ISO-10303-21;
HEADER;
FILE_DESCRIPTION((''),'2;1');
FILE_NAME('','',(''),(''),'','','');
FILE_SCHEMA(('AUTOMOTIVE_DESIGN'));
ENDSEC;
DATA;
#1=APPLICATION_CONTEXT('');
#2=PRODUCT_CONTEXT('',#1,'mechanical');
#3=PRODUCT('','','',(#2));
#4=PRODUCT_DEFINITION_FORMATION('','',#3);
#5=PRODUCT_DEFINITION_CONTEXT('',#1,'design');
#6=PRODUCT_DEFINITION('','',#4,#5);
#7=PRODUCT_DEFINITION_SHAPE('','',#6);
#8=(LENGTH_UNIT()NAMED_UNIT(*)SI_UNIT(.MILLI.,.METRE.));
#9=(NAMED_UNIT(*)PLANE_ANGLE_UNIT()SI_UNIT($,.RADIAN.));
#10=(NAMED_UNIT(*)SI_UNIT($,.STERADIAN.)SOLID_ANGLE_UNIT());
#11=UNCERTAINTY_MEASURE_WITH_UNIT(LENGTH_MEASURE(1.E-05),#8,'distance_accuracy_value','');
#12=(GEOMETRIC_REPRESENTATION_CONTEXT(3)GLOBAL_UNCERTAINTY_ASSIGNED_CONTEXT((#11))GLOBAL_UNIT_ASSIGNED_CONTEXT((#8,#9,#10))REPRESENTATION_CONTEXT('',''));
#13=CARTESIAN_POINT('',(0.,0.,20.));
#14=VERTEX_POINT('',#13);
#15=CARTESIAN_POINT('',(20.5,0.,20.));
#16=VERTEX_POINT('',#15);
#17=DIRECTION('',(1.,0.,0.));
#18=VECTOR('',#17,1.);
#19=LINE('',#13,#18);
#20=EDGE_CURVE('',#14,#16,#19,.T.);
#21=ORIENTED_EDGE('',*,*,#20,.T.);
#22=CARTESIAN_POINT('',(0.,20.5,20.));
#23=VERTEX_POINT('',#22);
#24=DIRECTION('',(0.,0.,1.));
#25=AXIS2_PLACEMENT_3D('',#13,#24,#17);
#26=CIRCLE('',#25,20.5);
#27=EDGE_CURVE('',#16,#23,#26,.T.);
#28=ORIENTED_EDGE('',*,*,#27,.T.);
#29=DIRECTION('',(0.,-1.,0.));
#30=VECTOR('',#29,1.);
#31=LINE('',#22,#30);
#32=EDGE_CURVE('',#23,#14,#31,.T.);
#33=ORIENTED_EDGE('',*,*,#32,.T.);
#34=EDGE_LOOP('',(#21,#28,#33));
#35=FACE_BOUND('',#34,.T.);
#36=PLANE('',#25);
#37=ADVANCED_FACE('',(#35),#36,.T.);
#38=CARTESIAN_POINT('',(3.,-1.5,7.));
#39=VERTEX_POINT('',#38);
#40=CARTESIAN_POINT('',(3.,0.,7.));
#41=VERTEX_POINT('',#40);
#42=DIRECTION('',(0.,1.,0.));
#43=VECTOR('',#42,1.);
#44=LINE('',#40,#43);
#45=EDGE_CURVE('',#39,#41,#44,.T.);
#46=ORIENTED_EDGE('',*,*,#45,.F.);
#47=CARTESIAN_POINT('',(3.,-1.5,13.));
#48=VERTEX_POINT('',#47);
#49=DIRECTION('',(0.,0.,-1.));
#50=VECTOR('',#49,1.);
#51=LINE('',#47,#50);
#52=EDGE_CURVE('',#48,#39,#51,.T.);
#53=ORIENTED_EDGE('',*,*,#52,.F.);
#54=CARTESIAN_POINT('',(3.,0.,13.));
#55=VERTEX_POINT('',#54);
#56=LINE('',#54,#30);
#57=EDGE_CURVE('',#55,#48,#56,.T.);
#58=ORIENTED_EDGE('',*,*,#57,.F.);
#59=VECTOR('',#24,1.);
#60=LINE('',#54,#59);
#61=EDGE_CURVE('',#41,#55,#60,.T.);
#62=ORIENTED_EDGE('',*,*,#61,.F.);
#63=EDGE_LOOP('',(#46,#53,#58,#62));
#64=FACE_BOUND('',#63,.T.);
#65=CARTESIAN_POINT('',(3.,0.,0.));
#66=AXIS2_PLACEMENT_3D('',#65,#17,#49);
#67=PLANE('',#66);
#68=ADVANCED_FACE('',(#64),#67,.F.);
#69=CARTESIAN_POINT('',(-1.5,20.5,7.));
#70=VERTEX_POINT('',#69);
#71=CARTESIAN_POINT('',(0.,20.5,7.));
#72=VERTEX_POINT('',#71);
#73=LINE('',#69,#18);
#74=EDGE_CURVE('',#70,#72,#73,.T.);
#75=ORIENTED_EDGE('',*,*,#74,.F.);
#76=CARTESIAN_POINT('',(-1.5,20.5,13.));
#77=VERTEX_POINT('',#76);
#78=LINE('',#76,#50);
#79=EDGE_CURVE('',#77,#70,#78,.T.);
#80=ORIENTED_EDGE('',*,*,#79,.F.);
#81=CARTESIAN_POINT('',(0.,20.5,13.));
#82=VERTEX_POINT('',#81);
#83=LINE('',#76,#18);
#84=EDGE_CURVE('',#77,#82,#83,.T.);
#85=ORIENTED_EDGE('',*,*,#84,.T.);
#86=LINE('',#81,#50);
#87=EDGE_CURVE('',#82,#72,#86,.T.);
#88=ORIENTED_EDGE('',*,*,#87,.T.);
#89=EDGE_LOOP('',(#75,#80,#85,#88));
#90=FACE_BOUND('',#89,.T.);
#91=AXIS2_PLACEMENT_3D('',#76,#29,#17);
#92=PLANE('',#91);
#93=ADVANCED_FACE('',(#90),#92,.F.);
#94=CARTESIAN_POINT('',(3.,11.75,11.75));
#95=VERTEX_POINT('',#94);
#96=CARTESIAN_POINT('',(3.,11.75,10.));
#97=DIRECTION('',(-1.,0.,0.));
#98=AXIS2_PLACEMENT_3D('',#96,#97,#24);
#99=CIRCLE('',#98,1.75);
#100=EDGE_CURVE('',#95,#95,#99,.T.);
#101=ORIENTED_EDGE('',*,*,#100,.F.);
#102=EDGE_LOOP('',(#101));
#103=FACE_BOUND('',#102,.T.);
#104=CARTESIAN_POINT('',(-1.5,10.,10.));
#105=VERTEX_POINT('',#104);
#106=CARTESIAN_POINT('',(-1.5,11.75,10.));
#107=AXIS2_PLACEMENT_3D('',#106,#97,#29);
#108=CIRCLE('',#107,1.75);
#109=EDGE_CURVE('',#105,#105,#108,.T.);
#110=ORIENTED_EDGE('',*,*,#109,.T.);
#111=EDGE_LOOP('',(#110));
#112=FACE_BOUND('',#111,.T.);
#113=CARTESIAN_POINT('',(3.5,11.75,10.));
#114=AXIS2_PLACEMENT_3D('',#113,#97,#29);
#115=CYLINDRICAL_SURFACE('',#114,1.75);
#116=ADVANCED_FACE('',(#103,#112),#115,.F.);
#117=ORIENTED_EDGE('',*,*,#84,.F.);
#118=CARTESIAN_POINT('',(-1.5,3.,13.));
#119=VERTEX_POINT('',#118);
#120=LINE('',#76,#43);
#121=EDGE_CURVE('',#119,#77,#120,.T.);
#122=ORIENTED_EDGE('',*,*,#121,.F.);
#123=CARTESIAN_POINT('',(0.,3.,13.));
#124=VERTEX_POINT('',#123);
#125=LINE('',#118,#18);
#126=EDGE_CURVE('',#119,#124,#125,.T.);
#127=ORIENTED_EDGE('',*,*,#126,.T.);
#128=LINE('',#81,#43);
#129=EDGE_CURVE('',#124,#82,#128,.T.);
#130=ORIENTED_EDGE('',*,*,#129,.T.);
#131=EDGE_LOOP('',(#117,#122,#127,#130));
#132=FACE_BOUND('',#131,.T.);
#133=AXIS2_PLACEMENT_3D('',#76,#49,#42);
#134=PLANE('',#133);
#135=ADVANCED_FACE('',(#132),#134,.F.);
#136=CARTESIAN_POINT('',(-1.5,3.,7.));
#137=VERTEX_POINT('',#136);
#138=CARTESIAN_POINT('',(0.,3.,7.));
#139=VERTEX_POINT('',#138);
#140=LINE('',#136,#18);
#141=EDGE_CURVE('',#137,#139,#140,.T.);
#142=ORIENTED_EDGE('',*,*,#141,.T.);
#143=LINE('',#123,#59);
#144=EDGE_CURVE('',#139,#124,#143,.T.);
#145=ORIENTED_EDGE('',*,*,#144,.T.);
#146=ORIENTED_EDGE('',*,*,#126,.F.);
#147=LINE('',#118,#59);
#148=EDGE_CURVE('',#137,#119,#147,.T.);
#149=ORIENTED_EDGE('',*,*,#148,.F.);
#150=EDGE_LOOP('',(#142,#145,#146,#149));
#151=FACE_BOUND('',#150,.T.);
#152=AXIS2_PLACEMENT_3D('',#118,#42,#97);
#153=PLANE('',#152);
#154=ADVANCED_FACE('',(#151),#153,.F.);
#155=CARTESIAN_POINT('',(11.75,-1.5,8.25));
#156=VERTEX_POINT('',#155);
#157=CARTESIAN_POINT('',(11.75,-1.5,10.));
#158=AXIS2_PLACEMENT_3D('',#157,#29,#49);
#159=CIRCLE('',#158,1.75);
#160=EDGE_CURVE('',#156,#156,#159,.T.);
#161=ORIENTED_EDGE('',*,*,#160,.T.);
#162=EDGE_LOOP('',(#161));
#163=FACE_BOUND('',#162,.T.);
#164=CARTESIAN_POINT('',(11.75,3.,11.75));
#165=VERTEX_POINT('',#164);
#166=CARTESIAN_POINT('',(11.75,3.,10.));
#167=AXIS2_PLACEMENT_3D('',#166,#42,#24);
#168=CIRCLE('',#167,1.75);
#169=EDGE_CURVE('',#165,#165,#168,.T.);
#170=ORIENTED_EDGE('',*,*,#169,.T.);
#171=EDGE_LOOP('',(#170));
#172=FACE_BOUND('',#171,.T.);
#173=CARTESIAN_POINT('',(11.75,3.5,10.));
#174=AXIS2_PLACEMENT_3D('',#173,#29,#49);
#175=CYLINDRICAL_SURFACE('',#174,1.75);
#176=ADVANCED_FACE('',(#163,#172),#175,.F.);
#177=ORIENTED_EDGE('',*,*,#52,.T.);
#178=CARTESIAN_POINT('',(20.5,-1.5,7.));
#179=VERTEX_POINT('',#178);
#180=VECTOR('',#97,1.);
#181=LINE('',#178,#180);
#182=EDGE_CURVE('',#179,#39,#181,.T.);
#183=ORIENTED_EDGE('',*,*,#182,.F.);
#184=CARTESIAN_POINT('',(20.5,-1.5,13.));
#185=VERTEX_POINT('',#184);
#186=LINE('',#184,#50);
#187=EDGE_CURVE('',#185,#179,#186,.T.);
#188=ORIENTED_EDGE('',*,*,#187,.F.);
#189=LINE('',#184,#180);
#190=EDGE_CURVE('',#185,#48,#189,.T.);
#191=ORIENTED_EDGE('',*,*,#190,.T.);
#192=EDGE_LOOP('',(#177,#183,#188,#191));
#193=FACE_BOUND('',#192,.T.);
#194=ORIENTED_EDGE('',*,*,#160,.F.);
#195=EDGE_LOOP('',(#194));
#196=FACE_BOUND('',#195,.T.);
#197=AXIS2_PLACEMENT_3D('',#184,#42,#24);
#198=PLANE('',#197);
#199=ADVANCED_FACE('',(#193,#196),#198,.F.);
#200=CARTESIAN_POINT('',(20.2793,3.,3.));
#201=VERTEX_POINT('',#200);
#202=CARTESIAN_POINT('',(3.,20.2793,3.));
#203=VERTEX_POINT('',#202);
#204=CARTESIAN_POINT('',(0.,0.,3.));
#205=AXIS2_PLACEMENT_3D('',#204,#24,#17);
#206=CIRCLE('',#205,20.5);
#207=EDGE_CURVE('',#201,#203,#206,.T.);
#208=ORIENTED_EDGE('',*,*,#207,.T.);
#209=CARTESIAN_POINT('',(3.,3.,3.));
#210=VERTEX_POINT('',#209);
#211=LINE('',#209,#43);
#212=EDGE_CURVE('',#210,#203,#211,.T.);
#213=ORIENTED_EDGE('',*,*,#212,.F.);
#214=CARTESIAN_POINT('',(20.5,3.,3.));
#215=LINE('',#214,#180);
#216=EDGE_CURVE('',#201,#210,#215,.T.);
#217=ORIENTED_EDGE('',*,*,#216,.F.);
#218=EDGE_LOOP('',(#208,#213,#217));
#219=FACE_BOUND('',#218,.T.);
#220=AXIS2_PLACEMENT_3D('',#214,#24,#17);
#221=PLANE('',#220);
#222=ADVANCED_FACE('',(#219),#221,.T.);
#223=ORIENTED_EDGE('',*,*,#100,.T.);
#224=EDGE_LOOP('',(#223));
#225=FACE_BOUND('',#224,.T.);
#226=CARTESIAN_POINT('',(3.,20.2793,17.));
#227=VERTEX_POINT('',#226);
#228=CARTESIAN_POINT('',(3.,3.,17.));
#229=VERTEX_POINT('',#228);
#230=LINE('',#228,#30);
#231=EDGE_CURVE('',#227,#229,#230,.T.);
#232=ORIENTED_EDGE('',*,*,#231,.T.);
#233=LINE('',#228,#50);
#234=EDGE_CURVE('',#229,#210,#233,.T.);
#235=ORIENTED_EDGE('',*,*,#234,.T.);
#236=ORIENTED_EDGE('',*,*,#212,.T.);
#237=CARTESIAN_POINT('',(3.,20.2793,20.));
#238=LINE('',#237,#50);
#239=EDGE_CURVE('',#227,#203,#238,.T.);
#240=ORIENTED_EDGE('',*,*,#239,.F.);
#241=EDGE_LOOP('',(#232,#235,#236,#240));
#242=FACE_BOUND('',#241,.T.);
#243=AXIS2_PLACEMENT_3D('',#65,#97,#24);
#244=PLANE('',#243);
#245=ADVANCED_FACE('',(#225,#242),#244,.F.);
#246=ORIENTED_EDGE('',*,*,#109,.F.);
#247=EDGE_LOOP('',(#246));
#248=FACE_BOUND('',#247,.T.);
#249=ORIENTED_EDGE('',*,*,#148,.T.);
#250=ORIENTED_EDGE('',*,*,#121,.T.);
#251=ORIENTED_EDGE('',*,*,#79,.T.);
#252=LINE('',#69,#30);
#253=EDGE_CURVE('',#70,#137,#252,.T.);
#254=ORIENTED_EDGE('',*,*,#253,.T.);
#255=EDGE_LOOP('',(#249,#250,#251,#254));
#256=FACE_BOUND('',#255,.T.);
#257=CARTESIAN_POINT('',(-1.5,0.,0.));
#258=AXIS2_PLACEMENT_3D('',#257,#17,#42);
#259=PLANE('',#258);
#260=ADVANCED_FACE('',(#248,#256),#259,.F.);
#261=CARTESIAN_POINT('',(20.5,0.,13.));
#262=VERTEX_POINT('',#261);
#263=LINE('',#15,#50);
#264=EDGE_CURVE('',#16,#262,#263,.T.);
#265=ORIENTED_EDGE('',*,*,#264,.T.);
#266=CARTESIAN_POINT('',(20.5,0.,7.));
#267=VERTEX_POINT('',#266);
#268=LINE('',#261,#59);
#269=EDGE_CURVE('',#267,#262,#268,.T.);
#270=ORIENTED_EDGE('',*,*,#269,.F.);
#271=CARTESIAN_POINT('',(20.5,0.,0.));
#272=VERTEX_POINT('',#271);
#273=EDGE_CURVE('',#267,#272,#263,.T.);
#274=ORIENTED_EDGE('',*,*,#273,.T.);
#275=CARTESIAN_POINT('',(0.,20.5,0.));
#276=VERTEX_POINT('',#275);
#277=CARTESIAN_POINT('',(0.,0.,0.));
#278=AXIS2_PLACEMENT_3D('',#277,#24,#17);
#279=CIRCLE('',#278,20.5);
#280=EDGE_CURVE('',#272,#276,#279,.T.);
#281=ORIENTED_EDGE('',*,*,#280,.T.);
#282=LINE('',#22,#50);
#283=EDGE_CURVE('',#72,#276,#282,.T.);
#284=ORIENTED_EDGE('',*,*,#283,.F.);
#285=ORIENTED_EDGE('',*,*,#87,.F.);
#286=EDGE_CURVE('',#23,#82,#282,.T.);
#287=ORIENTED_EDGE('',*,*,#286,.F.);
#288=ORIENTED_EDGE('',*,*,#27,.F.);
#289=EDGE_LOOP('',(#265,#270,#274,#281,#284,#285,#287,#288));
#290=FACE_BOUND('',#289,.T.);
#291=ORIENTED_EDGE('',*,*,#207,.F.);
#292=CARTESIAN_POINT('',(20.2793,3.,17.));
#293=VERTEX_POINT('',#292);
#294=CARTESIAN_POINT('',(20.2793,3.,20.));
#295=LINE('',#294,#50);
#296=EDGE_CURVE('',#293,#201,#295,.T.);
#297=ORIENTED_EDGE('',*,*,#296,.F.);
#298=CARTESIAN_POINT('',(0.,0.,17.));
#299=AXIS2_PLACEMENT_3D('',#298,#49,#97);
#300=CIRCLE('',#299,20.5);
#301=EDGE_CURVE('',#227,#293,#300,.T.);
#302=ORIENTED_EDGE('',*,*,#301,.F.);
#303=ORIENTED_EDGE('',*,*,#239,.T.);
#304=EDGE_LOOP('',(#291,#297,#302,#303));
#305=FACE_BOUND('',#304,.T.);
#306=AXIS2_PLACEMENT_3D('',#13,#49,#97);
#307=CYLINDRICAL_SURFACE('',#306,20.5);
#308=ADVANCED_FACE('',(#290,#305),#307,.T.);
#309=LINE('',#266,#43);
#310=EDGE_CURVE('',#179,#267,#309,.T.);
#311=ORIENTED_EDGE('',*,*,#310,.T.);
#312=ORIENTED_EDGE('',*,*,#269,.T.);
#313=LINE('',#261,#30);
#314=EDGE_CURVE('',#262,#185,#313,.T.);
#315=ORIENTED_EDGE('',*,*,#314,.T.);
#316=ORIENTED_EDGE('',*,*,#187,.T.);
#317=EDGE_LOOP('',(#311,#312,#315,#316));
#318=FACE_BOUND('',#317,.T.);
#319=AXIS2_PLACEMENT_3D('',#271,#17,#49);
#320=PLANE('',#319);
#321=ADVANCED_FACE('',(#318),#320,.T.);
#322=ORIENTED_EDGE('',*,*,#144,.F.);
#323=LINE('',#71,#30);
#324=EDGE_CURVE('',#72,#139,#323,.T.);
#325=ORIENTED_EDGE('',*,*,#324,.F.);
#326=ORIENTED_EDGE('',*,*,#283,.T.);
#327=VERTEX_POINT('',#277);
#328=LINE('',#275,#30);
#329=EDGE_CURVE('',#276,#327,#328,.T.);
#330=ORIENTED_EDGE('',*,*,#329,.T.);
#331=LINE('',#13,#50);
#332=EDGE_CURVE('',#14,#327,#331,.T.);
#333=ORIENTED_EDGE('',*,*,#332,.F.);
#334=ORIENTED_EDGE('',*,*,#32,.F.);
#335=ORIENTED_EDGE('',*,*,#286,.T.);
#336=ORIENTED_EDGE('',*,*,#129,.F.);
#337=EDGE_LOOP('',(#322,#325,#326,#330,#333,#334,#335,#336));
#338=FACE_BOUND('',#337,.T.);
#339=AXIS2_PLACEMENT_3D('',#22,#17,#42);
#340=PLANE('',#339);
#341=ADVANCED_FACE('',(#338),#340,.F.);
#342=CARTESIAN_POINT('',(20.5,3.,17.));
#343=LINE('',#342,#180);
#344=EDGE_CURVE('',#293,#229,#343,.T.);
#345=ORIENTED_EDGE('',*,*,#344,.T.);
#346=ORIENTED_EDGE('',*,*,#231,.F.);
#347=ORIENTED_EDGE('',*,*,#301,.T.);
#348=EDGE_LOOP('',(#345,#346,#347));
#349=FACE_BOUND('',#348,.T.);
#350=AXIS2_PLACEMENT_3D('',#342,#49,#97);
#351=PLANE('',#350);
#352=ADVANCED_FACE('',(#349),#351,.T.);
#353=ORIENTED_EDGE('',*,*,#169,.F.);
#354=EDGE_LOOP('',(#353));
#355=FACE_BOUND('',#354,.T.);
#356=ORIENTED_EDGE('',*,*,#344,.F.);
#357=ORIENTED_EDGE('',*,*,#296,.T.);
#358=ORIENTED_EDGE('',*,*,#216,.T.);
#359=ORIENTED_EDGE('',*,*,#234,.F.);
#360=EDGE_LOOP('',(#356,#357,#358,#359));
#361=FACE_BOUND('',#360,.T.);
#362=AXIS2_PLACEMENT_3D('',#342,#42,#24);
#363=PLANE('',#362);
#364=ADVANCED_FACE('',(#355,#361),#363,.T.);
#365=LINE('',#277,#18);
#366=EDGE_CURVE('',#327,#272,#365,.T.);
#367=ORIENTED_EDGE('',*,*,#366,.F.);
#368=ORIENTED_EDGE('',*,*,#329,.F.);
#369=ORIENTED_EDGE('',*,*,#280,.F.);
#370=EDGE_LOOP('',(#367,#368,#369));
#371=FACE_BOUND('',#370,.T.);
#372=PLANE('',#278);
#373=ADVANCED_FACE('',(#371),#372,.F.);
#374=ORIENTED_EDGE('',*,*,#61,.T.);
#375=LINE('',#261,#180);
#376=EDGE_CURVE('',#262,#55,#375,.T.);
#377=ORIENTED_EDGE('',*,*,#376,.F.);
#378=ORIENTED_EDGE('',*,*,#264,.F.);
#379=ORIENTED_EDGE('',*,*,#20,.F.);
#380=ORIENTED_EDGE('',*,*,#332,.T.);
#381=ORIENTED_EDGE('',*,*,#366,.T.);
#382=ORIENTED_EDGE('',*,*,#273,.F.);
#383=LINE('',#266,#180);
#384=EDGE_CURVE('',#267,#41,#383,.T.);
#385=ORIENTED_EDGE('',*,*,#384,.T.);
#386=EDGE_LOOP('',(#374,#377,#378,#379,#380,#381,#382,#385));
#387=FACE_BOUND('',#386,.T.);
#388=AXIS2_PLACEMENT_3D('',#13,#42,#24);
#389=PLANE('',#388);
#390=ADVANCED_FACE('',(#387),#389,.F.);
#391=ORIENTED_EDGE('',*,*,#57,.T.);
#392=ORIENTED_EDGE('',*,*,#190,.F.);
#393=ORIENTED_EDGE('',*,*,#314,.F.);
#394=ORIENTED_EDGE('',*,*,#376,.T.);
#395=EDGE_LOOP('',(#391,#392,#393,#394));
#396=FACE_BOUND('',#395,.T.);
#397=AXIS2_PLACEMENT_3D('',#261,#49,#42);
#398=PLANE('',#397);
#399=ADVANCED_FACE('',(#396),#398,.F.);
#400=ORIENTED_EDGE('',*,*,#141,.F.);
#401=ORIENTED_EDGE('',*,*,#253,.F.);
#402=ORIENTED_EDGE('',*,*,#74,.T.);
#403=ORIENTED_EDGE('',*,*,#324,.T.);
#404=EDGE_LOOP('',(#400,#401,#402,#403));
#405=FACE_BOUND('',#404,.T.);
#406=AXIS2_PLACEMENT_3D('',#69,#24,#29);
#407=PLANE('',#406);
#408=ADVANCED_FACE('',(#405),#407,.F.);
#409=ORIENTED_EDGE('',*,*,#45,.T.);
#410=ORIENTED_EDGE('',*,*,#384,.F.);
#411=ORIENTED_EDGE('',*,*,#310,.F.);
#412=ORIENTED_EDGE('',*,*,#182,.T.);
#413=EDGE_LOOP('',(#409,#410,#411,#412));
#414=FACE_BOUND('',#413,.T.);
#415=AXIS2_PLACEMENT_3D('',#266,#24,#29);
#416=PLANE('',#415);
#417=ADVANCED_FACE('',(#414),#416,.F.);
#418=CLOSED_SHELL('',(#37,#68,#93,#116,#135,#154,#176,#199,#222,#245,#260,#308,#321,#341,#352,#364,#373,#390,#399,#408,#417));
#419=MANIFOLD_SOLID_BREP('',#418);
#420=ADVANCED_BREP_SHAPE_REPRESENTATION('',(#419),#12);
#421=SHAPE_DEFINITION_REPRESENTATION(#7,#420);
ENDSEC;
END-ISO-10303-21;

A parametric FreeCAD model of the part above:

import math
import FreeCAD as App
import Part
import Sketcher

V = App.Vector
Q = App.Units.Quantity

doc = App.newDocument("Part")
body = doc.addObject("PartDesign::Body", "Body")

sketch1 = body.newObject("Sketcher::SketchObject", "Sketch")
sketch1.AttachmentSupport = (doc.getObject("XY_Plane"), [""])
sketch1.MapMode = "FlatFace"
sketch1.addGeometry([
    Part.LineSegment(V(0, 20.5, 0), V(0, 0, 0)),
    Part.LineSegment(V(0, 0, 0), V(20.5, 0, 0)),
    Part.ArcOfCircle(Part.Circle(V(0, 0, 0), V(0, 0, 1), 20.5), math.radians(0), math.radians(90)),
], False)
sketch1.addConstraint([
    Sketcher.Constraint("Coincident", 0, 2, 1, 1),
    Sketcher.Constraint("Coincident", 1, 2, 2, 1),
    Sketcher.Constraint("Coincident", 2, 2, 0, 1),
    Sketcher.Constraint("Vertical", 0),
    Sketcher.Constraint("Horizontal", 1),
    Sketcher.Constraint("Coincident", 2, 3, -1, 1),
    Sketcher.Constraint("Coincident", 0, 2, -1, 1),
    Sketcher.Constraint("Radius", 2, Q("20.5 mm")),
])
pad1 = body.newObject("PartDesign::Pad", "Pad")
pad1.Profile = sketch1
pad1.Length = 20

sketch2 = body.newObject("Sketcher::SketchObject", "Sketch001")
sketch2.AttachmentSupport = (doc.getObject("YZ_Plane"), [""])
sketch2.MapMode = "FlatFace"
sketch2.AttachmentOffset = App.Placement(V(0, 0, 3), App.Rotation())
sketch2.addGeometry([
    Part.LineSegment(V(20.5, 17, 0), V(3, 17, 0)),
    Part.LineSegment(V(3, 17, 0), V(3, 3, 0)),
    Part.LineSegment(V(3, 3, 0), V(20.5, 3, 0)),
    Part.LineSegment(V(20.5, 3, 0), V(20.5, 17, 0)),
], False)
sketch2.addConstraint([
    Sketcher.Constraint("Coincident", 0, 2, 1, 1),
    Sketcher.Constraint("Coincident", 1, 2, 2, 1),
    Sketcher.Constraint("Coincident", 2, 2, 3, 1),
    Sketcher.Constraint("Coincident", 3, 2, 0, 1),
    Sketcher.Constraint("Horizontal", 0),
    Sketcher.Constraint("Vertical", 1),
    Sketcher.Constraint("Horizontal", 2),
    Sketcher.Constraint("Vertical", 3),
    Sketcher.Constraint("DistanceY", 1, 2, 1, 1, Q("14 mm")),
    Sketcher.Constraint("DistanceX", 0, 2, 0, 1, Q("17.5 mm")),
    Sketcher.Constraint("DistanceX", -1, 1, 0, 2, Q("3 mm")),
    Sketcher.Constraint("DistanceY", -1, 1, 0, 2, Q("17 mm")),
])
pocket1 = body.newObject("PartDesign::Pocket", "Pocket")
pocket1.Profile = sketch2
pocket1.Type = "ThroughAll"
pocket1.Reversed = True

sketch3 = body.newObject("Sketcher::SketchObject", "Sketch002")
sketch3.AttachmentSupport = (doc.getObject("YZ_Plane"), [""])
sketch3.MapMode = "FlatFace"
sketch3.AttachmentOffset = App.Placement(V(0, 0, 3), App.Rotation())
sketch3.addGeometry([
    Part.LineSegment(V(0, 13, 0), V(-1.5, 13, 0)),
    Part.LineSegment(V(-1.5, 13, 0), V(-1.5, 7, 0)),
    Part.LineSegment(V(-1.5, 7, 0), V(0, 7, 0)),
    Part.LineSegment(V(0, 7, 0), V(0, 13, 0)),
], False)
sketch3.addConstraint([
    Sketcher.Constraint("Coincident", 0, 2, 1, 1),
    Sketcher.Constraint("Coincident", 1, 2, 2, 1),
    Sketcher.Constraint("Coincident", 2, 2, 3, 1),
    Sketcher.Constraint("Coincident", 3, 2, 0, 1),
    Sketcher.Constraint("Horizontal", 0),
    Sketcher.Constraint("Vertical", 1),
    Sketcher.Constraint("Horizontal", 2),
    Sketcher.Constraint("Vertical", 3),
    Sketcher.Constraint("PointOnObject", 2, 2, -2),
    Sketcher.Constraint("DistanceY", 1, 2, 1, 1, Q("6 mm")),
    Sketcher.Constraint("DistanceX", 0, 2, 0, 1, Q("1.5 mm")),
    Sketcher.Constraint("DistanceY", -1, 1, 0, 2, Q("13 mm")),
])
pad2 = body.newObject("PartDesign::Pad", "Pad001")
pad2.Profile = sketch3
pad2.Length = 17.5

sketch4 = body.newObject("Sketcher::SketchObject", "Sketch003")
sketch4.AttachmentSupport = (doc.getObject("XZ_Plane"), [""])
sketch4.MapMode = "FlatFace"
sketch4.AttachmentOffset = App.Placement(V(0, 0, 1.5), App.Rotation())
sketch4.addGeometry(Part.Circle(V(11.75, 10, 0), V(0, 0, 1), 1.75), False)
sketch4.addConstraint([
    Sketcher.Constraint("Diameter", 0, Q("3.5 mm")),
    Sketcher.Constraint("DistanceY", -1, 1, 0, 3, Q("10 mm")),
    Sketcher.Constraint("DistanceX", -1, 1, 0, 3, Q("11.75 mm")),
])
pocket2 = body.newObject("PartDesign::Pocket", "Pocket001")
pocket2.Profile = sketch4
pocket2.Length = 5

sketch5 = body.newObject("Sketcher::SketchObject", "Sketch004")
sketch5.AttachmentSupport = (doc.getObject("YZ_Plane"), [""])
sketch5.MapMode = "FlatFace"
sketch5.addGeometry([
    Part.LineSegment(V(20.5, 7, 0), V(3, 7, 0)),
    Part.LineSegment(V(3, 7, 0), V(3, 13, 0)),
    Part.LineSegment(V(3, 13, 0), V(20.5, 13, 0)),
    Part.LineSegment(V(20.5, 13, 0), V(20.5, 7, 0)),
], False)
sketch5.addConstraint([
    Sketcher.Constraint("Coincident", 0, 2, 1, 1),
    Sketcher.Constraint("Coincident", 1, 2, 2, 1),
    Sketcher.Constraint("Coincident", 2, 2, 3, 1),
    Sketcher.Constraint("Coincident", 3, 2, 0, 1),
    Sketcher.Constraint("Horizontal", 0),
    Sketcher.Constraint("Vertical", 1),
    Sketcher.Constraint("Horizontal", 2),
    Sketcher.Constraint("Vertical", 3),
    Sketcher.Constraint("DistanceY", 1, 1, 1, 2, Q("6 mm")),
    Sketcher.Constraint("DistanceX", 0, 2, 0, 1, Q("17.5 mm")),
    Sketcher.Constraint("DistanceX", -1, 1, 0, 2, Q("3 mm")),
    Sketcher.Constraint("DistanceY", -1, 1, 0, 2, Q("7 mm")),
])
pad3 = body.newObject("PartDesign::Pad", "Pad002")
pad3.Profile = sketch5
pad3.Length = 1.5
pad3.Reversed = True

sketch6 = body.newObject("Sketcher::SketchObject", "Sketch005")
sketch6.AttachmentSupport = (doc.getObject("YZ_Plane"), [""])
sketch6.MapMode = "FlatFace"
sketch6.AttachmentOffset = App.Placement(V(0, 0, -1.5), App.Rotation())
sketch6.addGeometry(Part.Circle(V(11.75, 10, 0), V(0, 0, 1), 1.75), False)
sketch6.addConstraint([
    Sketcher.Constraint("Diameter", 0, Q("3.5 mm")),
    Sketcher.Constraint("DistanceY", -1, 1, 0, 3, Q("10 mm")),
    Sketcher.Constraint("DistanceX", -1, 1, 0, 3, Q("11.75 mm")),
])
pocket3 = body.newObject("PartDesign::Pocket", "Pocket002")
pocket3.Profile = sketch6
pocket3.Length = 5
pocket3.Reversed = True

doc.recompute()
